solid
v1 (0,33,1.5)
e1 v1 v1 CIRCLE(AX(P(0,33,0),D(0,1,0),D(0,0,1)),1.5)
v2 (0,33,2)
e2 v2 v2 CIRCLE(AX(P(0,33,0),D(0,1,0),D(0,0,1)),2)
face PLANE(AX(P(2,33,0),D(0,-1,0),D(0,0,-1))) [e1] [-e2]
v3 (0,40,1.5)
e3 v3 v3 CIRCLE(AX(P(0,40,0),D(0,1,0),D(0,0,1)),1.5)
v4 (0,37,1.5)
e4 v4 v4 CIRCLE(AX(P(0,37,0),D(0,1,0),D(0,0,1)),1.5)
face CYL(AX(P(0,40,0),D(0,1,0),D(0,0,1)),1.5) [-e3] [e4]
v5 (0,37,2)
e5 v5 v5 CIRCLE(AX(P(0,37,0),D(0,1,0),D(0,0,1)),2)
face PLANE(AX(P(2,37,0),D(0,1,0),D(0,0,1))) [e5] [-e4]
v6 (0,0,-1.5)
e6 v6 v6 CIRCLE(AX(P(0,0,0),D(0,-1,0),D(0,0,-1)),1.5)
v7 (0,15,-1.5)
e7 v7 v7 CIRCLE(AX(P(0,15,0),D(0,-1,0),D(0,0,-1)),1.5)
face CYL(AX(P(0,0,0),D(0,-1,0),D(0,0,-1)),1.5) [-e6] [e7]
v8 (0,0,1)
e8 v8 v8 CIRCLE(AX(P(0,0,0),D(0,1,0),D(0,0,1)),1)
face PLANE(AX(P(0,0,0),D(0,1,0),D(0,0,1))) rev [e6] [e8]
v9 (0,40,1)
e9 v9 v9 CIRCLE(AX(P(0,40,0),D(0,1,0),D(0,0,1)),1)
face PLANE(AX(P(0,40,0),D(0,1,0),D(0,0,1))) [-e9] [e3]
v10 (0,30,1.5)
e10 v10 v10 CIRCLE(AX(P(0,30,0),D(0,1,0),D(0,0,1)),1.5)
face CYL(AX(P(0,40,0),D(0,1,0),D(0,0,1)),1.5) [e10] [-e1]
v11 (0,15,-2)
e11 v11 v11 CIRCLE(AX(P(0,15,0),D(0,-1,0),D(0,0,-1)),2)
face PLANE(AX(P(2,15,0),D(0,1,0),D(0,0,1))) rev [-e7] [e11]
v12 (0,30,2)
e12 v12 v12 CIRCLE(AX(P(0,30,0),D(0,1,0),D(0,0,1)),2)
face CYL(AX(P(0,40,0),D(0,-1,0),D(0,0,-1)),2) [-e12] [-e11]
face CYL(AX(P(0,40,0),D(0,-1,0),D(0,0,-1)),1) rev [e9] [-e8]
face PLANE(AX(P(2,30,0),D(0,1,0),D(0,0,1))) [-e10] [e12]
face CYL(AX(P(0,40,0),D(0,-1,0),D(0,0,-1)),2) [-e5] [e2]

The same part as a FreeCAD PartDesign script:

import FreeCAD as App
import Part
import Sketcher
from FreeCAD import Vector
Q = App.Units.Quantity


def add_polygon(sketch, points):
    """Adds a closed chain of lines whose ends are joined by coincident constraints."""
    first, n = sketch.GeometryCount, len(points)
    for a, b in zip(points, points[1:] + points[:1]):
        sketch.addGeometry(Part.LineSegment(App.Vector(*a, 0), App.Vector(*b, 0)), False)
    for i in range(n):
        sketch.addConstraint(Sketcher.Constraint("Coincident", first + i, 2, first + (i + 1) % n, 1))

doc = App.newDocument("Part")
body = doc.addObject("PartDesign::Body", "Body")

# Sketch on XZ plane
sketch1 = body.newObject("Sketcher::SketchObject", "Sketch")
sketch1.AttachmentSupport = (doc.getObject("XZ_Plane"), [""])
sketch1.MapMode = "FlatFace"
sketch1.addGeometry([
    Part.Circle(Vector(0, 0, 0), Vector(0, 0, 1), 2),
    Part.Circle(Vector(0, 0, 0), Vector(0, 0, 1), 1),
], False)
sketch1.addConstraint([
    Sketcher.Constraint("Coincident", 0, 3, -1, 1),
    Sketcher.Constraint("Coincident", 1, 3, -1, 1),
    Sketcher.Constraint("Diameter", 0, Q("4 mm")),
    Sketcher.Constraint("Diameter", 1, Q("2 mm")),
])
pad1 = body.newObject("PartDesign::Pad", "Pad")
pad1.Profile = sketch1
pad1.Length = 40
pad1.Reversed = True

# Sketch on XY plane
sketch2 = body.newObject("Sketcher::SketchObject", "Sketch001")
sketch2.AttachmentSupport = (doc.getObject("XY_Plane"), [""])
sketch2.MapMode = "FlatFace"
add_polygon(sketch2, [(1.5, 40), (1.5, 37), (2, 37), (2, 40)])  # lines 0-3
add_polygon(sketch2, [(1.5, 33), (1.5, 30), (2, 30), (2, 33)])  # lines 4-7
sketch2.addConstraint([
    Sketcher.Constraint("Vertical", 0),
    Sketcher.Constraint("Horizontal", 1),
    Sketcher.Constraint("Vertical", 2),
    Sketcher.Constraint("Horizontal", 3),
    Sketcher.Constraint("Vertical", 4),
    Sketcher.Constraint("Horizontal", 5),
    Sketcher.Constraint("Vertical", 6),
    Sketcher.Constraint("Horizontal", 7),
    Sketcher.Constraint("Vertical", 3, 2, 4, 2),
    Sketcher.Constraint("Vertical", 2, 2, 5, 2),
    Sketcher.Constraint("Equal", 2, 4),
    Sketcher.Constraint("DistanceY", 0, 2, 0, 1, Q("3 mm")),
    Sketcher.Constraint("DistanceX", 1, 1, 1, 2, Q("0.5 mm")),
    Sketcher.Constraint("DistanceY", -1, 1, 0, 2, Q("37 mm")),
    Sketcher.Constraint("DistanceX", -1, 1, 1, 2, Q("2 mm")),
    Sketcher.Constraint("DistanceY", -1, 1, 4, 2, Q("30 mm")),
])
groove = body.newObject("PartDesign::Groove", "Groove")
groove.Profile = sketch2
groove.ReferenceAxis = (sketch2, ["V_Axis"])
groove.Angle = 360

# Sketch on XY plane
sketch3 = body.newObject("Sketcher::SketchObject", "Sketch002")
sketch3.AttachmentSupport = (doc.getObject("XY_Plane"), [""])
sketch3.MapMode = "FlatFace"
add_polygon(sketch3, [(1.5, 15), (1.5, 0), (2, 0), (2, 15)])  # lines 0-3
sketch3.addConstraint([
    Sketcher.Constraint("Vertical", 0),
    Sketcher.Constraint("Horizontal", 1),
    Sketcher.Constraint("Vertical", 2),
    Sketcher.Constraint("Horizontal", 3),
    Sketcher.Constraint("PointOnObject", 0, 2, -1),
    Sketcher.Constraint("DistanceY", 0, 2, 0, 1, Q("15 mm")),
    Sketcher.Constraint("DistanceX", 1, 1, 1, 2, Q("0.5 mm")),
    Sketcher.Constraint("DistanceX", -1, 1, 1, 2, Q("2 mm")),
])
groove2 = body.newObject("PartDesign::Groove", "Groove001")
groove2.Profile = sketch3
groove2.ReferenceAxis = (sketch3, ["V_Axis"])
groove2.Angle = 360

doc.recompute()
